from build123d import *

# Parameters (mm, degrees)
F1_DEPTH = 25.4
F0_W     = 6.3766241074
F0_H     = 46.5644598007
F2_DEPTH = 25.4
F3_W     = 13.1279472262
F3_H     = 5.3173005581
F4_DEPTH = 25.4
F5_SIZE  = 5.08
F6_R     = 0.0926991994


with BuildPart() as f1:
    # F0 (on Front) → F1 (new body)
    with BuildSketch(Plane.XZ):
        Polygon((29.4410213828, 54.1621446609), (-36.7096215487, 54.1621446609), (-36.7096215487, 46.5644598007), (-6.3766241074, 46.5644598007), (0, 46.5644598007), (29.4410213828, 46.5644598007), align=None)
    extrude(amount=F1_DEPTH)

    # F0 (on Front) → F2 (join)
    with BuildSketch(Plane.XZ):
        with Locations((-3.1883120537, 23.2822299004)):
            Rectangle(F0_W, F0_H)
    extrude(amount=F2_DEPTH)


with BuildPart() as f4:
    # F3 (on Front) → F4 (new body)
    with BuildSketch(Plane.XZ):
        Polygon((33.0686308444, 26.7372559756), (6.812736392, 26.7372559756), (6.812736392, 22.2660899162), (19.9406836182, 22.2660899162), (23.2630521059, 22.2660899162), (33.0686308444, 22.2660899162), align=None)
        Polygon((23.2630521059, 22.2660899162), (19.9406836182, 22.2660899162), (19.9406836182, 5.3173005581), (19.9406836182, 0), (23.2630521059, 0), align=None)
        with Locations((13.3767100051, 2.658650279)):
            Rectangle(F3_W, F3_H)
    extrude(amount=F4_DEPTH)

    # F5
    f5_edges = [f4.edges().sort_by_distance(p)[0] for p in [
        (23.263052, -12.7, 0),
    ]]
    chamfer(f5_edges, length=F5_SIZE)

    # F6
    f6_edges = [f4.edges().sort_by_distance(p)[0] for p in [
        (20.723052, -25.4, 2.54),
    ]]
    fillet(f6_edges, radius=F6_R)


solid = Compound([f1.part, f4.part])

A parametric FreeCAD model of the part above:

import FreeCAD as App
import Part
import Sketcher
from FreeCAD import Vector
Q = App.Units.Quantity


def edges_at(feature, points):
    """Names of the edges that pass closest to the given points."""
    edges = feature.Shape.Edges
    near = lambda p: min(range(len(edges)), key=lambda i: edges[i].distToShape(Part.Vertex(*p))[0])
    return sorted({f"Edge{near(p) + 1}" for p in points})


def add_polygon(sketch, points):
    """Adds a closed chain of lines whose ends are joined by coincident constraints."""
    first, n = sketch.GeometryCount, len(points)
    for a, b in zip(points, points[1:] + points[:1]):
        sketch.addGeometry(Part.LineSegment(App.Vector(*a, 0), App.Vector(*b, 0)), False)
    for i in range(n):
        sketch.addConstraint(Sketcher.Constraint("Coincident", first + i, 2, first + (i + 1) % n, 1))

doc = App.newDocument("Part")
body = doc.addObject("PartDesign::Body", "Body")

# Sketch on XZ plane
sketch1 = body.newObject("Sketcher::SketchObject", "Sketch")
sketch1.AttachmentSupport = (doc.getObject("XZ_Plane"), [""])
sketch1.MapMode = "FlatFace"
add_polygon(sketch1, [(29, 54), (-37, 54), (-37, 47), (29, 47)])  # lines 0-3
sketch1.addConstraint([
    Sketcher.Constraint("Horizontal", 0),
    Sketcher.Constraint("Vertical", 1),
    Sketcher.Constraint("Horizontal", 2),
    Sketcher.Constraint("Vertical", 3),
    Sketcher.Constraint("DistanceX", 0, 2, 0, 1, 66.150643),
    Sketcher.Constraint("DistanceY", 1, 2, 1, 1, 7.597685),
    Sketcher.Constraint("DistanceX", 0, 2, -1, 1, 36.709622),
    Sketcher.Constraint("DistanceY", -1, 1, 1, 2, 46.56446),
])
pad1 = body.newObject("PartDesign::Pad", "Pad")
pad1.Profile = sketch1
pad1.Length = Q("1 in")

# Sketch on XZ plane
sketch2 = body.newObject("Sketcher::SketchObject", "Sketch001")
sketch2.AttachmentSupport = (doc.getObject("XZ_Plane"), [""])
sketch2.MapMode = "FlatFace"
add_polygon(sketch2, [(-6, 47), (-6, 0), (0, 0), (0, 47)])  # lines 0-3
sketch2.addConstraint([
    Sketcher.Constraint("Vertical", 0),
    Sketcher.Constraint("Horizontal", 1),
    Sketcher.Constraint("Vertical", 2),
    Sketcher.Constraint("Horizontal", 3),
    Sketcher.Constraint("Coincident", 1, 2, -1, 1),
    Sketcher.Constraint("DistanceY", 0, 2, 0, 1, 46.56446),
    Sketcher.Constraint("DistanceX", 1, 1, 1, 2, 6.376624),
])
pad2 = body.newObject("PartDesign::Pad", "Pad001")
pad2.Profile = sketch2
pad2.Length = Q("1 in")
body2 = doc.addObject("PartDesign::Body", "Body001")

# Sketch on XZ plane
sketch3 = body2.newObject("Sketcher::SketchObject", "Sketch002")
sketch3.AttachmentSupport = (doc.getObject("XZ_Plane001"), [""])
sketch3.MapMode = "FlatFace"
add_polygon(sketch3, [(33.1, 26.7), (6.8, 26.7), (6.8, 22.3), (19.9, 22.3), (19.9, 5.3), (6.8, 5.3), (6.8, 0), (19.9, 0), (23.3, 0), (23.3, 22.3), (33.1, 22.3)])  # lines 0-10
sketch3.addConstraint([
    Sketcher.Constraint("Horizontal", 0),
    Sketcher.Constraint("Vertical", 1),
    Sketcher.Constraint("Horizontal", 2),
    Sketcher.Constraint("Vertical", 3),
    Sketcher.Constraint("Horizontal", 4),
    Sketcher.Constraint("Vertical", 5),
    Sketcher.Constraint("Horizontal", 6),
    Sketcher.Constraint("Horizontal", 7),
    Sketcher.Constraint("Vertical", 8),
    Sketcher.Constraint("Horizontal", 9),
    Sketcher.Constraint("Vertical", 10),
    Sketcher.Constraint("PointOnObject", 5, 2, -1),
    Sketcher.Constraint("Horizontal", 2, 2, 8, 2),
    Sketcher.Constraint("Vertical", 1, 2, 4, 2),
    Sketcher.Constraint("Vertical", 3, 2, 6, 2),
    Sketcher.Constraint("DistanceY", 5, 2, 5, 1, 5.317301),
    Sketcher.Constraint("DistanceX", 7, 1, 7, 2, 3.322368),
    Sketcher.Constraint("DistanceX", 9, 1, 9, 2, 9.805579),
    Sketcher.Constraint("DistanceY", 3, 2, 3, 1, 16.948789),
    Sketcher.Constraint("DistanceX", 0, 2, 0, 1, 26.255894),
    Sketcher.Constraint("DistanceY", 1, 2, 1, 1, 4.471166),
    Sketcher.Constraint("DistanceX", -1, 1, 9, 2, 33.068631),
])
pad3 = body2.newObject("PartDesign::Pad", "Pad002")
pad3.Profile = sketch3
pad3.Length = Q("1 in")
doc.recompute()

chamfer = body2.newObject("PartDesign::Chamfer", "Chamfer")
chamfer.Base = (pad3, edges_at(pad3, [(23.263, -12.7, 0)]))
chamfer.Size = Q("0.2 in")
doc.recompute()

fillet = body2.newObject("PartDesign::Fillet", "Fillet")
fillet.Base = (chamfer, edges_at(chamfer, [(20.723, -25.4, 2.54)]))
fillet.Radius = 0.092699

doc.recompute()
